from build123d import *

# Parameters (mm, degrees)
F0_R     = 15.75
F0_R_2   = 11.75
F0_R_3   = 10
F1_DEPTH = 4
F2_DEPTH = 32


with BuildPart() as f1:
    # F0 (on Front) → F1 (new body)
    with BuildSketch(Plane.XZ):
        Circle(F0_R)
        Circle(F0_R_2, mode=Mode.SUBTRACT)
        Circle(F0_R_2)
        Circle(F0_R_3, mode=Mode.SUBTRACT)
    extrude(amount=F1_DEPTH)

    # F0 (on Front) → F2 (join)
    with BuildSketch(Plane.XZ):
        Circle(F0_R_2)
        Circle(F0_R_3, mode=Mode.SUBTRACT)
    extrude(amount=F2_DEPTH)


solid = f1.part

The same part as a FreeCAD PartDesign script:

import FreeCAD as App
import Part
import Sketcher

V = App.Vector

doc = App.newDocument("Part")
body = doc.addObject("PartDesign::Body", "Body")

sketch1 = doc.addObject("Sketcher::SketchObject", "Sketch")
body.addObject(sketch1)
sketch1.AttachmentSupport = (doc.XZ_Plane, [""])
sketch1.MapMode = "FlatFace"
sketch1.addGeometry([
    Part.Circle(V(0, 0, 0), V(0, 0, 1), 15.75),
    Part.Circle(V(0, 0, 0), V(0, 0, 1), 10),
], False)
sketch1.addConstraint([
    Sketcher.Constraint("Coincident", 0, 3, -1, 1),
    Sketcher.Constraint("Coincident", 1, 3, -1, 1),
    Sketcher.Constraint("Diameter", 1, 20.0),
    Sketcher.Constraint("Diameter", 0, 31.5),
])
pad1 = doc.addObject("PartDesign::Pad", "Pad")
body.addObject(pad1)
pad1.Profile = sketch1
pad1.Length = 4

sketch2 = doc.addObject("Sketcher::SketchObject", "Sketch001")
body.addObject(sketch2)
sketch2.AttachmentSupport = (doc.XZ_Plane, [""])
sketch2.MapMode = "FlatFace"
sketch2.addGeometry([
    Part.Circle(V(0, 0, 0), V(0, 0, 1), 11.75),
    Part.Circle(V(0, 0, 0), V(0, 0, 1), 10),
], False)
sketch2.addConstraint([
    Sketcher.Constraint("Coincident", 0, 3, -1, 1),
    Sketcher.Constraint("Coincident", 1, 3, -1, 1),
    Sketcher.Constraint("Diameter", 1, 20.0),
    Sketcher.Constraint("Diameter", 0, 23.5),
])
pad2 = doc.addObject("PartDesign::Pad", "Pad001")
body.addObject(pad2)
pad2.Profile = sketch2
pad2.Length = 32

doc.recompute()
